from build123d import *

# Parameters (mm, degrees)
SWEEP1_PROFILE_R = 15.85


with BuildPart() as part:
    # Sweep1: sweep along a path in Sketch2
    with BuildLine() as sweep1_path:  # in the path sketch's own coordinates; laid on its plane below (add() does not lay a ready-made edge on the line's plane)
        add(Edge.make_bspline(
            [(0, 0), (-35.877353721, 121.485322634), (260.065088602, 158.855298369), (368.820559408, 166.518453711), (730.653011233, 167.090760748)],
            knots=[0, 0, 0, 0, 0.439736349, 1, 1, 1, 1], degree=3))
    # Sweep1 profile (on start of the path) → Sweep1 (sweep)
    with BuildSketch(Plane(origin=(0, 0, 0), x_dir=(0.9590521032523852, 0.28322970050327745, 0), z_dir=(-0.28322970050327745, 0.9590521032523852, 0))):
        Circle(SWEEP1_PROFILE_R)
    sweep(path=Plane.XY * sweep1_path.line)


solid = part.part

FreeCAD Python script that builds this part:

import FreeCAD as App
import Part
import Sketcher

V = App.Vector
Q = App.Units.Quantity

doc = App.newDocument("Part")
params = doc.addObject("Spreadsheet::Sheet", "Params")
for row, (alias, value) in enumerate([
    ("sketch1_diameter", "31.7 mm"),
], start=1):
    params.set(f"A{row}", alias)
    params.set(f"B{row}", "=" + value)
    params.setAlias(f"B{row}", alias)

body = doc.addObject("PartDesign::Body", "Body")

sketch1 = doc.addObject("Sketcher::SketchObject", "Sketch")
body.addObject(sketch1)
sketch1.Placement = App.Placement(V(0, 0, 0), App.Rotation(V(0.959052103, 0.283229701, 0), V(0, 0, -1), V(-0.283229701, 0.959052103, 0), "ZXY"))
sketch1.addGeometry(Part.Circle(V(0, 0, 0), V(0, 0, 1), 16), False)
sketch1.addConstraint([
    Sketcher.Constraint("Coincident", 0, 3, -1, 1),
    Sketcher.Constraint("Diameter", 0, Q("31.7 mm")),
])
sketch1.setExpression("Constraints[1]", "Params.sketch1_diameter")

sketch2 = doc.addObject("Sketcher::SketchObject", "Sketch001")
body.addObject(sketch2)
sketch2.AttachmentSupport = (doc.XY_Plane, [""])
sketch2.MapMode = "FlatFace"
sketch2.addGeometry(Part.BSplineCurve([V(0, 0, 0), V(-35.877354, 121.485323, 0), V(260.065089, 158.855298, 0), V(368.820559, 166.518454, 0), V(730.653011, 167.090761, 0)], [4, 1, 4], [0, 0.439736349, 1], False, 3, [1, 1, 1, 1, 1], False), False)
sketch2.addConstraint(Sketcher.Constraint("Block", 0))
doc.recompute()

additivepipe = doc.addObject("PartDesign::AdditivePipe", "AdditivePipe")
body.addObject(additivepipe)
additivepipe.Profile = sketch1
additivepipe.Spine = (sketch2, ["Edge1"])

doc.recompute()
